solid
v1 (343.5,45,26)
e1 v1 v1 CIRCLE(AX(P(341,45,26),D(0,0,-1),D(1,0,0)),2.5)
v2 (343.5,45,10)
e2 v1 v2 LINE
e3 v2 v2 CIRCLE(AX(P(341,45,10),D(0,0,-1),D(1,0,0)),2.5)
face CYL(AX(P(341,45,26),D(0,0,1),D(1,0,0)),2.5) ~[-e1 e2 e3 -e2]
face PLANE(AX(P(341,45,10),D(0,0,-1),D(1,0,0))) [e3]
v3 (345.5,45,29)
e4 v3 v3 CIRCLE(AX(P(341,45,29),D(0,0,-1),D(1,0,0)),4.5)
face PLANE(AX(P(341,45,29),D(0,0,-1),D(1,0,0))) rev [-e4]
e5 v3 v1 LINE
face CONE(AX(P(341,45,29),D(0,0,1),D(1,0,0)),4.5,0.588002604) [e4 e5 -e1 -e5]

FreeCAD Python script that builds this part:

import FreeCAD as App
import Part
import Sketcher

V = App.Vector
Q = App.Units.Quantity

doc = App.newDocument("Part")
body = doc.addObject("PartDesign::Body", "Body")

# Sketch on XZ plane
sketch1 = body.newObject("Sketcher::SketchObject", "Sketch")
sketch1.AttachmentSupport = (doc.getObject("XZ_Plane"), [""])
sketch1.MapMode = "FlatFace"
sketch1.addGeometry(Part.LineSegment(V(0, -3, 0), V(4.5, -3, 0)), False)
sketch1.addGeometry(Part.LineSegment(V(4.5, -3, 0), V(2.5, 0, 0)), False)
sketch1.addGeometry(Part.LineSegment(V(2.5, 0, 0), V(0, 0, 0)), False)
sketch1.addGeometry(Part.LineSegment(V(0, 0, 0), V(0, -3, 0)), False)
sketch1.addConstraint(Sketcher.Constraint("Coincident", 0, 2, 1, 1))
sketch1.addConstraint(Sketcher.Constraint("Coincident", 1, 2, 2, 1))
sketch1.addConstraint(Sketcher.Constraint("Coincident", 2, 2, 3, 1))
sketch1.addConstraint(Sketcher.Constraint("Coincident", 3, 2, 0, 1))
sketch1.addConstraint(Sketcher.Constraint("Horizontal", 0))
sketch1.addConstraint(Sketcher.Constraint("Horizontal", 2))
sketch1.addConstraint(Sketcher.Constraint("Vertical", 3))
sketch1.addConstraint(Sketcher.Constraint("Coincident", 2, 2, -1, 1))
sketch1.addConstraint(Sketcher.Constraint("DistanceY", 3, 2, 3, 1, Q("3 mm")))
sketch1.addConstraint(Sketcher.Constraint("DistanceX", 0, 1, 0, 2, Q("4.5 mm")))
sketch1.addConstraint(Sketcher.Constraint("DistanceX", 2, 2, 2, 1, Q("2.5 mm")))
revolution = body.newObject("PartDesign::Revolution", "Revolution")
revolution.Profile = sketch1
revolution.ReferenceAxis = (sketch1, ["V_Axis"])
revolution.Angle = 360
body2 = doc.addObject("PartDesign::Body", "Body001")

# Sketch on XY plane
sketch2 = body2.newObject("Sketcher::SketchObject", "Sketch001")
sketch2.AttachmentSupport = (doc.getObject("XY_Plane001"), [""])
sketch2.MapMode = "FlatFace"
sketch2.addGeometry(Part.Circle(V(0, 0, 0), V(0, 0, 1), 2.5), False)
sketch2.addConstraint(Sketcher.Constraint("Coincident", 0, 3, -1, 1))
sketch2.addConstraint(Sketcher.Constraint("Diameter", 0, Q("5 mm")))
pad1 = body2.newObject("PartDesign::Pad", "Pad")
pad1.Profile = sketch2
pad1.Length = 16
doc.recompute()

boolean = body2.newObject("PartDesign::Boolean", "Boolean")
boolean.Type = "Fuse"
boolean.addObjects([body])
body3 = doc.addObject("PartDesign::Body", "Body002")
doc.recompute()

body2.Placement = App.Placement(V(45, 15, 21), App.Rotation(V(0, 1, 0), 180))
boolean2 = body3.newObject("PartDesign::Boolean", "Boolean001")
boolean2.Type = "Fuse"
boolean2.addObjects([body2])
body4 = doc.addObject("PartDesign::Body", "Body003")
doc.recompute()

body3.Placement = App.Placement(V(90, 270, 0), App.Rotation(V(0, 0, 1), 180))
boolean3 = body4.newObject("PartDesign::Boolean", "Boolean002")
boolean3.Type = "Fuse"
boolean3.addObjects([body3])
body5 = doc.addObject("PartDesign::Body", "Body004")
doc.recompute()

body4.Placement = App.Placement(V(270, 0, 0), App.Rotation(V(0, 0, 1), 0))
boolean4 = body5.newObject("PartDesign::Boolean", "Boolean003")
boolean4.Type = "Fuse"
boolean4.addObjects([body4])
body6 = doc.addObject("PartDesign::Body", "Body005")
doc.recompute()

body5.Placement = App.Placement(V(26, -210, 5), App.Rotation(V(0, 0, 1), 0))
boolean5 = body6.newObject("PartDesign::Boolean", "Boolean004")
boolean5.Type = "Fuse"
boolean5.addObjects([body5])

doc.recompute()
